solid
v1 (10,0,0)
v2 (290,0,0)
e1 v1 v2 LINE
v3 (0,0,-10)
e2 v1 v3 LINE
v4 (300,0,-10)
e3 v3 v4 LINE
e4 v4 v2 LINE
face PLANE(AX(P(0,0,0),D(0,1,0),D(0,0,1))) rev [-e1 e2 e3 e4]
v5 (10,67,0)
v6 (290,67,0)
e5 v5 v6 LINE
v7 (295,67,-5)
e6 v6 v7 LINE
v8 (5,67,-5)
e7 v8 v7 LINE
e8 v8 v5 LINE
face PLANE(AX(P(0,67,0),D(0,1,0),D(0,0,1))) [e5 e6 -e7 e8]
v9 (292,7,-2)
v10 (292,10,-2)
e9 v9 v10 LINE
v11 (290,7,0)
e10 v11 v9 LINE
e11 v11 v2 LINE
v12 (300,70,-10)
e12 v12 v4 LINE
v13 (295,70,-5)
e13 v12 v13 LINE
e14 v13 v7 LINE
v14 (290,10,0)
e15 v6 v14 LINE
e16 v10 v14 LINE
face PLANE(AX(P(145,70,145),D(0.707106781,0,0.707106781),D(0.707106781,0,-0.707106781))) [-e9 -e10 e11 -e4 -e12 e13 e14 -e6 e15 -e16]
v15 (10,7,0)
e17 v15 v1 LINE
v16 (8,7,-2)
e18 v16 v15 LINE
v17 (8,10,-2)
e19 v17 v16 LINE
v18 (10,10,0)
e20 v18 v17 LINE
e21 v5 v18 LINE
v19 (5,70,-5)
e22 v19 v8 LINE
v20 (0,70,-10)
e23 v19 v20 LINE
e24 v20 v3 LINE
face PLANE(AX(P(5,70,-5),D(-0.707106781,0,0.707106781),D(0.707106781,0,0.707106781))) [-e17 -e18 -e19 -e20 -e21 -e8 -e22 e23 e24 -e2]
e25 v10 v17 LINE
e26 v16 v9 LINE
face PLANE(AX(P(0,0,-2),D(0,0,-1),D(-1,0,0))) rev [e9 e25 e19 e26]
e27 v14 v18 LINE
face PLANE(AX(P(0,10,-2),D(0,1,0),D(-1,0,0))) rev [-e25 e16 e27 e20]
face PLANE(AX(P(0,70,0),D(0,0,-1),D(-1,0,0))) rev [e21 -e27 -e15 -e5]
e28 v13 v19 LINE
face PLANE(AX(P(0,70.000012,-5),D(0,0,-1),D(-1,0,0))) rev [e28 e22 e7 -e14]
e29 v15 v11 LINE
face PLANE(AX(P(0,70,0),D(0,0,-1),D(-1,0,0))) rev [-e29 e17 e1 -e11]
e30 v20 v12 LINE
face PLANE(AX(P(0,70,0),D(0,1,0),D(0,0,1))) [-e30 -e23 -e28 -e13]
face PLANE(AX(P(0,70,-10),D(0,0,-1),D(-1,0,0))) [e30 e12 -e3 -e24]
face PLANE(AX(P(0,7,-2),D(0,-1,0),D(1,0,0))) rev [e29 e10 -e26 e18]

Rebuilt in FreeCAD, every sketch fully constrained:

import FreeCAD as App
import Part
import Sketcher

V = App.Vector

doc = App.newDocument("Part")
body = doc.addObject("PartDesign::Body", "Body")

# Sketch on XZ plane
sketch1 = doc.addObject("Sketcher::SketchObject", "Sketch")
body.addObject(sketch1)
sketch1.AttachmentSupport = (doc.XZ_Plane, [""])
sketch1.MapMode = "FlatFace"
sketch1.addGeometry(Part.LineSegment(V(0, -10, 0), V(10, 0, 0)), False)
sketch1.addGeometry(Part.LineSegment(V(10, 0, 0), V(290, 0, 0)), False)
sketch1.addGeometry(Part.LineSegment(V(290, 0, 0), V(300, -10, 0)), False)
sketch1.addGeometry(Part.LineSegment(V(300, -10, 0), V(0, -10, 0)), False)
sketch1.addConstraint(Sketcher.Constraint("Coincident", 0, 2, 1, 1))
sketch1.addConstraint(Sketcher.Constraint("Coincident", 1, 2, 2, 1))
sketch1.addConstraint(Sketcher.Constraint("Coincident", 2, 2, 3, 1))
sketch1.addConstraint(Sketcher.Constraint("Coincident", 3, 2, 0, 1))
sketch1.addConstraint(Sketcher.Constraint("Horizontal", 1))
sketch1.addConstraint(Sketcher.Constraint("Horizontal", 3))
sketch1.addConstraint(Sketcher.Constraint("PointOnObject", 0, 2, -1))
sketch1.addConstraint(Sketcher.Constraint("PointOnObject", 3, 2, -2))
sketch1.addConstraint(Sketcher.Constraint("Perpendicular", 0, 2))
sketch1.addConstraint(Sketcher.Constraint("Equal", 0, 2))
sketch1.addConstraint(Sketcher.Constraint("DistanceX", 1, 1, 1, 2, 280.0))
sketch1.addConstraint(Sketcher.Constraint("DistanceX", 3, 2, 3, 1, 300.0))
pad1 = doc.addObject("PartDesign::Pad", "Pad")
body.addObject(pad1)
pad1.Profile = sketch1
pad1.Length = 70
pad1.Reversed = True

# Sketch on XZ plane
sketch2 = doc.addObject("Sketcher::SketchObject", "Sketch001")
body.addObject(sketch2)
sketch2.AttachmentSupport = (doc.XZ_Plane, [""])
sketch2.MapMode = "FlatFace"
sketch2.AttachmentOffset = App.Placement(V(0, 0, -70), App.Rotation())
sketch2.addGeometry(Part.LineSegment(V(295, -5, 0), V(5, -5, 0)), False)
sketch2.addGeometry(Part.LineSegment(V(5, -5, 0), V(10, 0, 0)), False)
sketch2.addGeometry(Part.LineSegment(V(10, 0, 0), V(290, 0, 0)), False)
sketch2.addGeometry(Part.LineSegment(V(290, 0, 0), V(295, -5, 0)), False)
sketch2.addConstraint(Sketcher.Constraint("Coincident", 0, 2, 1, 1))
sketch2.addConstraint(Sketcher.Constraint("Coincident", 1, 2, 2, 1))
sketch2.addConstraint(Sketcher.Constraint("Coincident", 2, 2, 3, 1))
sketch2.addConstraint(Sketcher.Constraint("Coincident", 3, 2, 0, 1))
sketch2.addConstraint(Sketcher.Constraint("Horizontal", 0))
sketch2.addConstraint(Sketcher.Constraint("Horizontal", 2))
sketch2.addConstraint(Sketcher.Constraint("PointOnObject", 1, 2, -1))
sketch2.addConstraint(Sketcher.Constraint("Perpendicular", 1, 3))
sketch2.addConstraint(Sketcher.Constraint("Equal", 1, 3))
sketch2.addConstraint(Sketcher.Constraint("DistanceX", 0, 2, 0, 1, 290.0))
sketch2.addConstraint(Sketcher.Constraint("DistanceX", 2, 1, 2, 2, 280.0))
sketch2.addConstraint(Sketcher.Constraint("DistanceX", -1, 1, 0, 2, 5.0))
pocket1 = doc.addObject("PartDesign::Pocket", "Pocket")
body.addObject(pocket1)
pocket1.Profile = sketch2
pocket1.Type = "TwoLengths"
pocket1.Length = 309.2207
pocket1.Length2 = 3

# Sketch on XY plane
sketch3 = doc.addObject("Sketcher::SketchObject", "Sketch002")
body.addObject(sketch3)
sketch3.AttachmentSupport = (doc.XY_Plane, [""])
sketch3.MapMode = "FlatFace"
sketch3.addGeometry(Part.LineSegment(V(0, 10, 0), V(0, 7, 0)), False)
sketch3.addGeometry(Part.LineSegment(V(0, 7, 0), V(300, 7, 0)), False)
sketch3.addGeometry(Part.LineSegment(V(300, 7, 0), V(300, 10, 0)), False)
sketch3.addGeometry(Part.LineSegment(V(300, 10, 0), V(0, 10, 0)), False)
sketch3.addConstraint(Sketcher.Constraint("Coincident", 0, 2, 1, 1))
sketch3.addConstraint(Sketcher.Constraint("Coincident", 1, 2, 2, 1))
sketch3.addConstraint(Sketcher.Constraint("Coincident", 2, 2, 3, 1))
sketch3.addConstraint(Sketcher.Constraint("Coincident", 3, 2, 0, 1))
sketch3.addConstraint(Sketcher.Constraint("Vertical", 0))
sketch3.addConstraint(Sketcher.Constraint("Horizontal", 1))
sketch3.addConstraint(Sketcher.Constraint("Vertical", 2))
sketch3.addConstraint(Sketcher.Constraint("Horizontal", 3))
sketch3.addConstraint(Sketcher.Constraint("PointOnObject", 0, 2, -2))
sketch3.addConstraint(Sketcher.Constraint("DistanceX", 1, 1, 1, 2, 300.0))
sketch3.addConstraint(Sketcher.Constraint("DistanceY", 0, 2, 0, 1, 3.0))
sketch3.addConstraint(Sketcher.Constraint("DistanceY", -1, 1, 0, 2, 7.0))
pocket2 = doc.addObject("PartDesign::Pocket", "Pocket001")
body.addObject(pocket2)
pocket2.Profile = sketch3
pocket2.Length = 2

doc.recompute()
